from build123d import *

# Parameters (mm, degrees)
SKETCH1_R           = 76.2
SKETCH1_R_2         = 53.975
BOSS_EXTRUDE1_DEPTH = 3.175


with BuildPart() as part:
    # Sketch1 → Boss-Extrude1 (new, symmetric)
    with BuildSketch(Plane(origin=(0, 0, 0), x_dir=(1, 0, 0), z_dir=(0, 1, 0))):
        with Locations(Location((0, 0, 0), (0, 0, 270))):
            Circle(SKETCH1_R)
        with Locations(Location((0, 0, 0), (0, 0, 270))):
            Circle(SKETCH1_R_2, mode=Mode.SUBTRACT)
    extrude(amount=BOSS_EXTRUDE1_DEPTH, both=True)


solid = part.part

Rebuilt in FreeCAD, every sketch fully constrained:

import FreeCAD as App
import Part
import Sketcher
from FreeCAD import Vector
Q = App.Units.Quantity

doc = App.newDocument("Part")
body = doc.addObject("PartDesign::Body", "Body")

# Sketch on XZ plane
sketch1 = body.newObject("Sketcher::SketchObject", "Sketch")
sketch1.AttachmentSupport = (doc.getObject("XZ_Plane"), [""])
sketch1.MapMode = "FlatFace"
sketch1.addGeometry(Part.Circle(Vector(0, 0, 0), Vector(0, 0, 1), 76), False)
sketch1.addGeometry(Part.Circle(Vector(0, 0, 0), Vector(0, 0, 1), 54), False)
sketch1.addConstraint(Sketcher.Constraint("Coincident", 0, 3, -1, 1))
sketch1.addConstraint(Sketcher.Constraint("Coincident", 1, 3, -1, 1))
sketch1.addConstraint(Sketcher.Constraint("Diameter", 0, Q("6 in")))
sketch1.addConstraint(Sketcher.Constraint("Diameter", 1, Q("4.25 in")))
pad1 = body.newObject("PartDesign::Pad", "Pad")
pad1.Profile = sketch1
pad1.Length = Q("0.25 in")
pad1.Midplane = True

doc.recompute()
